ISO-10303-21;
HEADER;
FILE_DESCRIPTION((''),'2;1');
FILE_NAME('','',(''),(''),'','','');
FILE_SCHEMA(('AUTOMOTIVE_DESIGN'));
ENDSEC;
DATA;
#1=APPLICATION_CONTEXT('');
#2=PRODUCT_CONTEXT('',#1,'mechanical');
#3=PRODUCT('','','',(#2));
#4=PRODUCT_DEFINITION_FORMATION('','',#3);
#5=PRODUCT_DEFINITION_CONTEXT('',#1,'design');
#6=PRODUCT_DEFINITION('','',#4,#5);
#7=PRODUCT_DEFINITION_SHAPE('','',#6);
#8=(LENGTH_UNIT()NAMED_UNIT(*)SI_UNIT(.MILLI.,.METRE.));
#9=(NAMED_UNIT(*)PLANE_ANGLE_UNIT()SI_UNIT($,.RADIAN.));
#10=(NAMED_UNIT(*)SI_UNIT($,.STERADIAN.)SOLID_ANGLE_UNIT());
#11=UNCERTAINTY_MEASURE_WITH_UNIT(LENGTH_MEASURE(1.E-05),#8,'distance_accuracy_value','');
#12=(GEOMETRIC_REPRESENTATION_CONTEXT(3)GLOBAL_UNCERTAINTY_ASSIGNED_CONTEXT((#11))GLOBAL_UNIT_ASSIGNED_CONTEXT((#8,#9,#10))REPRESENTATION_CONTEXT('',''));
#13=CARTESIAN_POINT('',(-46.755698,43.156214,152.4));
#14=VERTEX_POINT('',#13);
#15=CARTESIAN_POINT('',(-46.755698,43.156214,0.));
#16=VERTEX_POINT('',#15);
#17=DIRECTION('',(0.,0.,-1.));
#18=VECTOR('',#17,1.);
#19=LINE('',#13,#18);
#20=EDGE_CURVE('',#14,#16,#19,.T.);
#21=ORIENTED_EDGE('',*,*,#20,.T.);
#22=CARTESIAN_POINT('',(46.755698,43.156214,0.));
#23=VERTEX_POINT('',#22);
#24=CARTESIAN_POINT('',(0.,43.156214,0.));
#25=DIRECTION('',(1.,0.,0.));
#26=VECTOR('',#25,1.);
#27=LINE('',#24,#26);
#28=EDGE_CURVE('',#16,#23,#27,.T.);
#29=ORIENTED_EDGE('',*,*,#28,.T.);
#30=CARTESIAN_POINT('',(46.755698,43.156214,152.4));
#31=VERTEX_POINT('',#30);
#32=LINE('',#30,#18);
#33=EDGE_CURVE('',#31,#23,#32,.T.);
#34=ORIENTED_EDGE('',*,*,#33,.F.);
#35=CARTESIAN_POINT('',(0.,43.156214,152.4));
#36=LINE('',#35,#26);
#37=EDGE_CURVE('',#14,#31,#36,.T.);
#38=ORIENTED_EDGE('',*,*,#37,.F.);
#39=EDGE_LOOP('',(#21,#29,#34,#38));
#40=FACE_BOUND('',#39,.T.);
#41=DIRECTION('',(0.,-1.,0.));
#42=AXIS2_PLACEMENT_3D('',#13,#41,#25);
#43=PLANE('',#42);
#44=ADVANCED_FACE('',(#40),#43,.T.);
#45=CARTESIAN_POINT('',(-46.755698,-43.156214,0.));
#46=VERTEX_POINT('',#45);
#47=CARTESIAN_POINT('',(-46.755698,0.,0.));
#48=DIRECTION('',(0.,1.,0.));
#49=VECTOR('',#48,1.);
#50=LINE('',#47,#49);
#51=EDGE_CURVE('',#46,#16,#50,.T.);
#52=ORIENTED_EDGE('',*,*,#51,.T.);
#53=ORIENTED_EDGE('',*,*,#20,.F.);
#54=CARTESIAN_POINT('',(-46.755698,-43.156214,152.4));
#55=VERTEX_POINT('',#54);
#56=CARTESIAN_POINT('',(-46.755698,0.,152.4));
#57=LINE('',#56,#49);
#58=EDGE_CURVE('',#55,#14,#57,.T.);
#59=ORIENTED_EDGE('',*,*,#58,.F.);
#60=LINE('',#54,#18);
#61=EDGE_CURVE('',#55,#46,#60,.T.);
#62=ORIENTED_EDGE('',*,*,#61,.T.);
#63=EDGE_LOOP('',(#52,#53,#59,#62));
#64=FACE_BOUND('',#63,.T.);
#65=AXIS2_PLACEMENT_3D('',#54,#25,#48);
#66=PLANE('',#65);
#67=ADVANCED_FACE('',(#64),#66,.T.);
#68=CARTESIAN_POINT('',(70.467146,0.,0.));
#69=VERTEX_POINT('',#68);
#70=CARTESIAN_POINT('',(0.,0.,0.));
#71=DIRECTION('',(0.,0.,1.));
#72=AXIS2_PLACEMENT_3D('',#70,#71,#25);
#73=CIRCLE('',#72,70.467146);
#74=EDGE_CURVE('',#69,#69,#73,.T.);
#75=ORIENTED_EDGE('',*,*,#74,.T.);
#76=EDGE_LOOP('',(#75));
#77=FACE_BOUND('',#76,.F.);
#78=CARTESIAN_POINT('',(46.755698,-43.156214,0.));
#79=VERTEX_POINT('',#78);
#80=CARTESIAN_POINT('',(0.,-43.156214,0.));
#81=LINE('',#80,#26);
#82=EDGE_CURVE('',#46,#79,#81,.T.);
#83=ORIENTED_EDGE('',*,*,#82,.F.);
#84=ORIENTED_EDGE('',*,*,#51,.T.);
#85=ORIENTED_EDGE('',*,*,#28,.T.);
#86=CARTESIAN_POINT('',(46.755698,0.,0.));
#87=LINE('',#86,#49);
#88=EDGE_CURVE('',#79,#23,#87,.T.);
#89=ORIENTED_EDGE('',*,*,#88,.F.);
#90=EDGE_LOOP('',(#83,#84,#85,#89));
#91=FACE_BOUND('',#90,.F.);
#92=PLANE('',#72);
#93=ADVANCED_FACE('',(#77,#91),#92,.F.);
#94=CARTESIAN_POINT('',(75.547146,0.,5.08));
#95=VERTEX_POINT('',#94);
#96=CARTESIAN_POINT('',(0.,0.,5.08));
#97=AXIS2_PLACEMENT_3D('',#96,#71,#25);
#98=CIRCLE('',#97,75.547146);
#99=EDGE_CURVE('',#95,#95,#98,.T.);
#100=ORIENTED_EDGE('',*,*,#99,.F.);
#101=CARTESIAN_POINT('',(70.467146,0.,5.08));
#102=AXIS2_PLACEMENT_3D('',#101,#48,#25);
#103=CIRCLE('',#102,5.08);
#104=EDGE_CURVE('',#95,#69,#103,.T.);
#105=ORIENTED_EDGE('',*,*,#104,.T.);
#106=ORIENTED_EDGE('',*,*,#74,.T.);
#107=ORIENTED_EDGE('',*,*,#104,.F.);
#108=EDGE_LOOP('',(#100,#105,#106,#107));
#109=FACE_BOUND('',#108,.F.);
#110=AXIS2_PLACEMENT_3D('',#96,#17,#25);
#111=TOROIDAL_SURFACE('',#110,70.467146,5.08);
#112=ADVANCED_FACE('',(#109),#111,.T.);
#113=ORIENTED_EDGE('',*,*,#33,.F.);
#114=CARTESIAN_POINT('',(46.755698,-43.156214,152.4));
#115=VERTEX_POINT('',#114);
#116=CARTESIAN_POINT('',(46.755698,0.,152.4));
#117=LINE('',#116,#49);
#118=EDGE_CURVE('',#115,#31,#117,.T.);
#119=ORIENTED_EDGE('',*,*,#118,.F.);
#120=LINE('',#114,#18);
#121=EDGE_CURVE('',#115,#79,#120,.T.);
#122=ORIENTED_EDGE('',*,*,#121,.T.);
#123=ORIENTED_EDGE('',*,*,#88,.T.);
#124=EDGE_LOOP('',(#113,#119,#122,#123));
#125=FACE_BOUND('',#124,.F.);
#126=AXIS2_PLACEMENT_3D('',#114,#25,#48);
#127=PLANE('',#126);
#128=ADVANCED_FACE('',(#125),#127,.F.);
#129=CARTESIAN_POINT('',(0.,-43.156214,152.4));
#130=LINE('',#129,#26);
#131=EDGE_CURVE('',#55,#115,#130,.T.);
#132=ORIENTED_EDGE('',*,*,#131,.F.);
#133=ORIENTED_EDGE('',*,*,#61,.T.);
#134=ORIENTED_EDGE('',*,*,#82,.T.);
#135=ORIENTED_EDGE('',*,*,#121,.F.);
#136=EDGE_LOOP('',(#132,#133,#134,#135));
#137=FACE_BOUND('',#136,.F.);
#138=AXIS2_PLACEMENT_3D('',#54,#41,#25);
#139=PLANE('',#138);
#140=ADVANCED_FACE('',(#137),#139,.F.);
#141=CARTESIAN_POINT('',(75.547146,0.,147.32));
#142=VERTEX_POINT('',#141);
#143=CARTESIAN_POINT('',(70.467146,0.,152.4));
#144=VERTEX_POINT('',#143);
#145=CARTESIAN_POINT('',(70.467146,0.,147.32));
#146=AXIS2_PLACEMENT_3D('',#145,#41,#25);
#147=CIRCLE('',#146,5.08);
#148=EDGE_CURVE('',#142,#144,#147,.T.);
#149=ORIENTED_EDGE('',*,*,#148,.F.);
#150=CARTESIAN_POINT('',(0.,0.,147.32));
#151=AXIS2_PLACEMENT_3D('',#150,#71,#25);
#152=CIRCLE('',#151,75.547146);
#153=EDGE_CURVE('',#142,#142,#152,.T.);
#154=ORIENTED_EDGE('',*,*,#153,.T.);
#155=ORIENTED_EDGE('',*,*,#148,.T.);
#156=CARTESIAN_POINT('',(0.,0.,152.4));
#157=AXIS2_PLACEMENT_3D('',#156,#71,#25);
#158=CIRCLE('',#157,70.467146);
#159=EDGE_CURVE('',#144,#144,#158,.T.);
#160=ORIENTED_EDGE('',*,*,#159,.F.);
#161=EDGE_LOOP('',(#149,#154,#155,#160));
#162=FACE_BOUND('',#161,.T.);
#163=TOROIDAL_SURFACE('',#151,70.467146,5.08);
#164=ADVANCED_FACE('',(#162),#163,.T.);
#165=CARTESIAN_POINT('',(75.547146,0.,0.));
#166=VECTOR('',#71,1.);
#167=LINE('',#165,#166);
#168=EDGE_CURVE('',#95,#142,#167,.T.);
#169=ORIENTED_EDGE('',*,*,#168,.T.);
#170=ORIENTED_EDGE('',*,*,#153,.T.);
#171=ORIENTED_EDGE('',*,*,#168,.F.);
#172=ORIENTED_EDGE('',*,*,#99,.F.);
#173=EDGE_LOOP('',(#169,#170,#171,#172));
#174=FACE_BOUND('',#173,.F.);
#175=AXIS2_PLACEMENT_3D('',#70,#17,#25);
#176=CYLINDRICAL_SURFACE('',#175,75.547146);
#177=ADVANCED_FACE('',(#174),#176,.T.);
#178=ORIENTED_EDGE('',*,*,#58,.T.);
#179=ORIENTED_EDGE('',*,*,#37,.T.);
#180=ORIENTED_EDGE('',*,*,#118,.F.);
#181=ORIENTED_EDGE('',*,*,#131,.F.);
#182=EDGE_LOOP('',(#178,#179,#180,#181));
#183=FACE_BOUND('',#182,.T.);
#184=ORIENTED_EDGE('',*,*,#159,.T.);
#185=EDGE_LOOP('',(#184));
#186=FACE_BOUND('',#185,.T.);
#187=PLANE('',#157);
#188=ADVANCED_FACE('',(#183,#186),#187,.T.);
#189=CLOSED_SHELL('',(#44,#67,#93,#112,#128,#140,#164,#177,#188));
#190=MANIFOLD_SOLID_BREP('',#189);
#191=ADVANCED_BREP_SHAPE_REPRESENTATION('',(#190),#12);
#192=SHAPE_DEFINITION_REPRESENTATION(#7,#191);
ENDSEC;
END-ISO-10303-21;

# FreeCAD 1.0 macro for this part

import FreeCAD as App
import Part
import Sketcher
from FreeCAD import Vector
Q = App.Units.Quantity


def edges_at(feature, points):
    """Names of the edges that pass closest to the given points."""
    edges = feature.Shape.Edges
    near = lambda p: min(range(len(edges)), key=lambda i: edges[i].distToShape(Part.Vertex(*p))[0])
    return sorted({f"Edge{near(p) + 1}" for p in points})

doc = App.newDocument("Part")
body = doc.addObject("PartDesign::Body", "Body")

# Sketch on XY plane
sketch1 = doc.addObject("Sketcher::SketchObject", "Sketch")
body.addObject(sketch1)
sketch1.AttachmentSupport = (doc.XY_Plane, [""])
sketch1.MapMode = "FlatFace"
sketch1.addGeometry(Part.Circle(Vector(0, 0, 0), Vector(0, 0, 1), 75.547146), False)
sketch1.addConstraint([
    Sketcher.Constraint("Coincident", 0, 3, -1, 1),
    Sketcher.Constraint("Diameter", 0, 151.094292),
])
pad1 = doc.addObject("PartDesign::Pad", "Pad")
body.addObject(pad1)
pad1.Profile = sketch1
pad1.Length = Q("6 in")
doc.recompute()

fillet = doc.addObject("PartDesign::Fillet", "Fillet")
body.addObject(fillet)
fillet.Base = (pad1, edges_at(pad1, [(-75.547, 0, 152.4)]))
fillet.Radius = Q("0.2 in")

# Sketch on XY plane
sketch2 = doc.addObject("Sketcher::SketchObject", "Sketch001")
body.addObject(sketch2)
sketch2.AttachmentSupport = (doc.XY_Plane, [""])
sketch2.MapMode = "FlatFace"
sketch2.AttachmentOffset = App.Placement(Vector(0, 0, 6 * 25.4), App.Rotation())
sketch2.addGeometry([
    Part.LineSegment(Vector(-46.755698, 43.156214, 0), Vector(-46.755698, -43.156214, 0)),
    Part.LineSegment(Vector(-46.755698, -43.156214, 0), Vector(46.755698, -43.156214, 0)),
    Part.LineSegment(Vector(46.755698, -43.156214, 0), Vector(46.755698, 43.156214, 0)),
    Part.LineSegment(Vector(46.755698, 43.156214, 0), Vector(-46.755698, 43.156214, 0)),
], False)
sketch2.addConstraint([
    Sketcher.Constraint("Coincident", 0, 2, 1, 1),
    Sketcher.Constraint("Coincident", 1, 2, 2, 1),
    Sketcher.Constraint("Coincident", 2, 2, 3, 1),
    Sketcher.Constraint("Coincident", 3, 2, 0, 1),
    Sketcher.Constraint("Vertical", 0),
    Sketcher.Constraint("Horizontal", 1),
    Sketcher.Constraint("Vertical", 2),
    Sketcher.Constraint("Horizontal", 3),
    Sketcher.Constraint("Symmetric", 0, 2, 2, 2, -1, 1),
    Sketcher.Constraint("DistanceX", 0, 2, -1, 1, 46.755698),
    Sketcher.Constraint("DistanceY", 0, 2, 0, 1, 86.312428),
])
pocket1 = doc.addObject("PartDesign::Pocket", "Pocket")
body.addObject(pocket1)
pocket1.Profile = sketch2
pocket1.Length = Q("6 in")
doc.recompute()

fillet2 = doc.addObject("PartDesign::Fillet", "Fillet001")
body.addObject(fillet2)
fillet2.Base = (pocket1, edges_at(pocket1, [(-75.547, 0, 0)]))
fillet2.Radius = Q("0.2 in")

doc.recompute()
